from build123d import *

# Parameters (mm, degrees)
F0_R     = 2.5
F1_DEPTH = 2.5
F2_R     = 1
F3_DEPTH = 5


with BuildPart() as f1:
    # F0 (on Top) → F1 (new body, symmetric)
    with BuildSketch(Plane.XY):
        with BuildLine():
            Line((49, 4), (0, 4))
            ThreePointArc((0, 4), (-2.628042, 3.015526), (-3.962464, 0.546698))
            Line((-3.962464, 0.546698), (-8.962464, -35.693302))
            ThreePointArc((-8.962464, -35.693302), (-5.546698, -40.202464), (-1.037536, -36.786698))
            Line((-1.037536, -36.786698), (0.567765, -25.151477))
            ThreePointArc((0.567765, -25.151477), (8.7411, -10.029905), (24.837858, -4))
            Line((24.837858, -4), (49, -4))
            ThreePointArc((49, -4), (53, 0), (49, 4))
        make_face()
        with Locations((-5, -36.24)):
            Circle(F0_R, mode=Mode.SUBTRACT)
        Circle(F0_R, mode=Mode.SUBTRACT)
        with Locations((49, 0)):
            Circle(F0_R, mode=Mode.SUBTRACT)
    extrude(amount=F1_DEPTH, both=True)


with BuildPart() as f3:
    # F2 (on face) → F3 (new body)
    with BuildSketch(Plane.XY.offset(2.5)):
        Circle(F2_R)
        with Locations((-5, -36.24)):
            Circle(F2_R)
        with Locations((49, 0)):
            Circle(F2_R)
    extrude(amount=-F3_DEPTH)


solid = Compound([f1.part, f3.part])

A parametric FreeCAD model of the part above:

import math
import FreeCAD as App
import Part
import Sketcher

doc = App.newDocument("Part")
body = doc.addObject("PartDesign::Body", "Body")

sketch1 = doc.addObject("Sketcher::SketchObject", "Sketch")
body.addObject(sketch1)
sketch1.AttachmentSupport = (doc.XY_Plane, [""])
sketch1.MapMode = "FlatFace"
sketch1.addGeometry(Part.LineSegment(App.Vector(49, 4, 0), App.Vector(0, 4, 0)), False)
sketch1.addGeometry(Part.ArcOfCircle(Part.Circle(App.Vector(-0.000001, 0.000001, 0), App.Vector(0, 0, 1), 3.999999), math.radians(89.999991), math.radians(172.14455)), False)
sketch1.addGeometry(Part.LineSegment(App.Vector(-3.962464, 0.546698, 0), App.Vector(-8.962464, -35.693302, 0)), False)
sketch1.addGeometry(Part.ArcOfCircle(Part.Circle(App.Vector(-5, -36.24, 0), App.Vector(0, 0, 1), 4), math.radians(172.144541), math.radians(352.144541)), False)
sketch1.addGeometry(Part.LineSegment(App.Vector(-1.037536, -36.786698, 0), App.Vector(0.567765, -25.151477, 0)), False)
sketch1.addGeometry(Part.ArcOfCircle(Part.Circle(App.Vector(24.837857, -28.499999, 0), App.Vector(0, 0, 1), 24.499999), math.radians(89.999997), math.radians(172.144548)), False)
sketch1.addGeometry(Part.LineSegment(App.Vector(24.837858, -4, 0), App.Vector(49, -4, 0)), False)
sketch1.addGeometry(Part.ArcOfCircle(Part.Circle(App.Vector(49, 0, 0), App.Vector(0, 0, 1), 4), math.radians(-90), math.radians(90)), False)
sketch1.addGeometry(Part.Circle(App.Vector(-5, -36.24, 0), App.Vector(0, 0, 1), 2.5), False)
sketch1.addGeometry(Part.Circle(App.Vector(0, 0, 0), App.Vector(0, 0, 1), 2.5), False)
sketch1.addGeometry(Part.Circle(App.Vector(49, 0, 0), App.Vector(0, 0, 1), 2.5), False)
sketch1.addConstraint(Sketcher.Constraint("Tangent", 0, 2, 1, 1))
sketch1.addConstraint(Sketcher.Constraint("Tangent", 1, 2, 2, 1))
sketch1.addConstraint(Sketcher.Constraint("Tangent", 2, 2, 3, 1))
sketch1.addConstraint(Sketcher.Constraint("Tangent", 3, 2, 4, 1))
sketch1.addConstraint(Sketcher.Constraint("Tangent", 4, 2, 5, 2))
sketch1.addConstraint(Sketcher.Constraint("Tangent", 5, 1, 6, 1))
sketch1.addConstraint(Sketcher.Constraint("Tangent", 6, 2, 7, 1))
sketch1.addConstraint(Sketcher.Constraint("Tangent", 7, 2, 0, 1))
sketch1.addConstraint(Sketcher.Constraint("Horizontal", 0))
sketch1.addConstraint(Sketcher.Constraint("Horizontal", 6))
sketch1.addConstraint(Sketcher.Constraint("Coincident", 1, 3, -1, 1))
sketch1.addConstraint(Sketcher.Constraint("Coincident", 9, 3, -1, 1))
sketch1.addConstraint(Sketcher.Constraint("Coincident", 8, 3, 3, 3))
sketch1.addConstraint(Sketcher.Constraint("Coincident", 10, 3, 7, 3))
sketch1.addConstraint(Sketcher.Constraint("Equal", 1, 3))
sketch1.addConstraint(Sketcher.Constraint("Equal", 3, 7))
sketch1.addConstraint(Sketcher.Constraint("Equal", 8, 9))
sketch1.addConstraint(Sketcher.Constraint("Equal", 9, 10))
sketch1.addConstraint(Sketcher.Constraint("Parallel", 2, 4))
sketch1.addConstraint(Sketcher.Constraint("Diameter", 8, 5.0))
sketch1.addConstraint(Sketcher.Constraint("Radius", 1, 3.999999))
sketch1.addConstraint(Sketcher.Constraint("Radius", 5, 24.499999))
sketch1.addConstraint(Sketcher.Constraint("DistanceX", 0, 2, 0, 1, 49.0))
sketch1.addConstraint(Sketcher.Constraint("DistanceX", 3, 3, -1, 1, 5.0))
sketch1.addConstraint(Sketcher.Constraint("DistanceY", 3, 3, -1, 1, 36.24))
pad1 = doc.addObject("PartDesign::Pad", "Pad")
body.addObject(pad1)
pad1.Profile = sketch1
pad1.Length = 5
pad1.Midplane = True
body2 = doc.addObject("PartDesign::Body", "Body001")
body2.AllowCompound = True

sketch2 = doc.addObject("Sketcher::SketchObject", "Sketch001")
body2.addObject(sketch2)
sketch2.AttachmentSupport = (doc.getObject("XY_Plane001"), [""])
sketch2.MapMode = "FlatFace"
sketch2.AttachmentOffset = App.Placement(App.Vector(0, 0, 2.5), App.Rotation())
sketch2.addGeometry(Part.Circle(App.Vector(0, 0, 0), App.Vector(0, 0, 1), 1), False)
sketch2.addGeometry(Part.Circle(App.Vector(-5, -36.24, 0), App.Vector(0, 0, 1), 1), False)
sketch2.addGeometry(Part.Circle(App.Vector(49, 0, 0), App.Vector(0, 0, 1), 1), False)
sketch2.addConstraint(Sketcher.Constraint("Coincident", 0, 3, -1, 1))
sketch2.addConstraint(Sketcher.Constraint("Equal", 0, 1))
sketch2.addConstraint(Sketcher.Constraint("Equal", 1, 2))
sketch2.addConstraint(Sketcher.Constraint("PointOnObject", 2, 3, -1))
sketch2.addConstraint(Sketcher.Constraint("Diameter", 0, 2.0))
sketch2.addConstraint(Sketcher.Constraint("DistanceX", 1, 3, -1, 1, 5.0))
sketch2.addConstraint(Sketcher.Constraint("DistanceX", -1, 1, 2, 3, 49.0))
sketch2.addConstraint(Sketcher.Constraint("DistanceY", 1, 3, -1, 1, 36.24))
pad2 = doc.addObject("PartDesign::Pad", "Pad001")
body2.addObject(pad2)
pad2.Profile = sketch2
pad2.Length = 5
pad2.Reversed = True

doc.recompute()
